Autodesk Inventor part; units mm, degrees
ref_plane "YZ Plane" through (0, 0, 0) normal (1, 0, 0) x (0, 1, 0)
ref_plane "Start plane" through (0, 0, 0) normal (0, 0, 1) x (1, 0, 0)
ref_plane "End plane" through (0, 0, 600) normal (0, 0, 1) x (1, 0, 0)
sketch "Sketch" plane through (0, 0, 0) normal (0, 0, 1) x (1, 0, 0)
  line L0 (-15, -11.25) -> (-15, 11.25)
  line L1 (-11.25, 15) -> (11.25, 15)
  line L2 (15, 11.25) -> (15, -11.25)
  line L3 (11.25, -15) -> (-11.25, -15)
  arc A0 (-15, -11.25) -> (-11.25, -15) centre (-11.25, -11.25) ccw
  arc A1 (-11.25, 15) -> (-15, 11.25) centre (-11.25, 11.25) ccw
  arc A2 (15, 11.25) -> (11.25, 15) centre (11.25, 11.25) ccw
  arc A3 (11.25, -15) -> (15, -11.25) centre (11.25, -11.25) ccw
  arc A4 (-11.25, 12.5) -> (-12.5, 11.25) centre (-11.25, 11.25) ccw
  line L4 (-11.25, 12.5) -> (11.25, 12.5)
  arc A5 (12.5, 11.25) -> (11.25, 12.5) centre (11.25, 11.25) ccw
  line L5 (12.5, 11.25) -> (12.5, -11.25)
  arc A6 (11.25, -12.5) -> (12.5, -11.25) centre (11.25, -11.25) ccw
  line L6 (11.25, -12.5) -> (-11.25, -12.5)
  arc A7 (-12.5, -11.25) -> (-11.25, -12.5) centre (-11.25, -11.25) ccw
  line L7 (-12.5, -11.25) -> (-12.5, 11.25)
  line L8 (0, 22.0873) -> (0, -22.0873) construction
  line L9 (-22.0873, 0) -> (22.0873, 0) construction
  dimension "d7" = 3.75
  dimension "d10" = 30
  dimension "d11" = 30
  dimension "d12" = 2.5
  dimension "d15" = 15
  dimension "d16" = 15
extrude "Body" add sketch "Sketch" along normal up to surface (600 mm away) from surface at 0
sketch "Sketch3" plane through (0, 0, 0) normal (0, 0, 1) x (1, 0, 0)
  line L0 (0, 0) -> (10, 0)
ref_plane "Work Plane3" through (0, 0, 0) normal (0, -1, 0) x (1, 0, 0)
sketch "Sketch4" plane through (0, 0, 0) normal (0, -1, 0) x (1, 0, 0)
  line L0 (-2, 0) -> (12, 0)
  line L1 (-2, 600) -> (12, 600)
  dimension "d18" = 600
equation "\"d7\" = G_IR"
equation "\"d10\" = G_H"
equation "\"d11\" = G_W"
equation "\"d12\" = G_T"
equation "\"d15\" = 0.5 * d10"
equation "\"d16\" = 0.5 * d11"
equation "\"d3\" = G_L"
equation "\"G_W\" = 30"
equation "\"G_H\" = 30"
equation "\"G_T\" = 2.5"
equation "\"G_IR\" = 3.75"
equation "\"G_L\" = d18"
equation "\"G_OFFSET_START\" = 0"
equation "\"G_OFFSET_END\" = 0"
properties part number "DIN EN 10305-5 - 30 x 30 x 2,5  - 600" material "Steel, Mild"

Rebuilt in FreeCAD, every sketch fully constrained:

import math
import FreeCAD as App
import Part
import Sketcher
from FreeCAD import Vector
Q = App.Units.Quantity

doc = App.newDocument("Part")
body = doc.addObject("PartDesign::Body", "Body")

# Sketch on XY plane
sketch1 = body.newObject("Sketcher::SketchObject", "Sketch")
sketch1.AttachmentSupport = (doc.getObject("XY_Plane"), [""])
sketch1.MapMode = "FlatFace"
sketch1.addGeometry([
    Part.LineSegment(Vector(-15, 11.2, 0), Vector(-15, -11.2, 0)),  # 0
    Part.ArcOfCircle(Part.Circle(Vector(-11.2, -11.2, 0), Vector(0, 0, 1), 3.8), math.radians(180), math.radians(270)),  # 1
    Part.LineSegment(Vector(-11.2, -15, 0), Vector(11.2, -15, 0)),  # 2
    Part.ArcOfCircle(Part.Circle(Vector(11.2, -11.2, 0), Vector(0, 0, 1), 3.8), math.radians(-90), math.radians(0)),  # 3
    Part.LineSegment(Vector(15, -11.2, 0), Vector(15, 11.2, 0)),  # 4
    Part.ArcOfCircle(Part.Circle(Vector(11.2, 11.2, 0), Vector(0, 0, 1), 3.8), math.radians(0), math.radians(90)),  # 5
    Part.LineSegment(Vector(11.2, 15, 0), Vector(-11.2, 15, 0)),  # 6
    Part.ArcOfCircle(Part.Circle(Vector(-11.2, 11.2, 0), Vector(0, 0, 1), 3.8), math.radians(90), math.radians(180)),  # 7
    Part.ArcOfCircle(Part.Circle(Vector(-11.2, 11.2, 0), Vector(0, 0, 1), 1.2), math.radians(90), math.radians(180)),  # 8
    Part.LineSegment(Vector(-11.2, 12.5, 0), Vector(11.2, 12.5, 0)),  # 9
    Part.ArcOfCircle(Part.Circle(Vector(11.2, 11.2, 0), Vector(0, 0, 1), 1.2), math.radians(0), math.radians(90)),  # 10
    Part.LineSegment(Vector(12.5, 11.2, 0), Vector(12.5, -11.2, 0)),  # 11
    Part.ArcOfCircle(Part.Circle(Vector(11.2, -11.2, 0), Vector(0, 0, 1), 1.2), math.radians(-90), math.radians(0)),  # 12
    Part.LineSegment(Vector(11.2, -12.5, 0), Vector(-11.2, -12.5, 0)),  # 13
    Part.ArcOfCircle(Part.Circle(Vector(-11.2, -11.2, 0), Vector(0, 0, 1), 1.2), math.radians(180), math.radians(270)),  # 14
    Part.LineSegment(Vector(-12.5, -11.2, 0), Vector(-12.5, 11.2, 0)),  # 15
], False)
sketch1.addConstraint([
    Sketcher.Constraint("Tangent", 0, 2, 1, 1),
    Sketcher.Constraint("Tangent", 1, 2, 2, 1),
    Sketcher.Constraint("Tangent", 2, 2, 3, 1),
    Sketcher.Constraint("Tangent", 3, 2, 4, 1),
    Sketcher.Constraint("Tangent", 4, 2, 5, 1),
    Sketcher.Constraint("Tangent", 5, 2, 6, 1),
    Sketcher.Constraint("Tangent", 6, 2, 7, 1),
    Sketcher.Constraint("Tangent", 7, 2, 0, 1),
    Sketcher.Constraint("Tangent", 8, 1, 9, 1),
    Sketcher.Constraint("Tangent", 9, 2, 10, 2),
    Sketcher.Constraint("Tangent", 10, 1, 11, 1),
    Sketcher.Constraint("Tangent", 11, 2, 12, 2),
    Sketcher.Constraint("Tangent", 12, 1, 13, 1),
    Sketcher.Constraint("Tangent", 13, 2, 14, 2),
    Sketcher.Constraint("Tangent", 14, 1, 15, 1),
    Sketcher.Constraint("Tangent", 15, 2, 8, 2),
    Sketcher.Constraint("Vertical", 0),
    Sketcher.Constraint("Horizontal", 2),
    Sketcher.Constraint("Vertical", 4),
    Sketcher.Constraint("Horizontal", 6),
    Sketcher.Constraint("Horizontal", 9),
    Sketcher.Constraint("Vertical", 11),
    Sketcher.Constraint("Horizontal", 13),
    Sketcher.Constraint("Vertical", 15),
    Sketcher.Constraint("Coincident", 8, 3, 7, 3),
    Sketcher.Constraint("Coincident", 10, 3, 5, 3),
    Sketcher.Constraint("Coincident", 12, 3, 3, 3),
    Sketcher.Constraint("Equal", 1, 3),
    Sketcher.Constraint("Equal", 3, 5),
    Sketcher.Constraint("Equal", 5, 7),
    Sketcher.Constraint("Equal", 12, 14),
    Sketcher.Constraint("Symmetric", 1, 3, 5, 3, -1, 1),
    Sketcher.Constraint("Equal", 13, 0),
    Sketcher.Constraint("Radius", 1, Q("3.75 mm")),
    Sketcher.Constraint("Radius", 8, Q("1.25 mm")),
    Sketcher.Constraint("DistanceX", 0, 2, -1, 1, Q("15 mm")),
])
pad1 = body.newObject("PartDesign::Pad", "Pad")
pad1.Profile = sketch1
pad1.Length = 600

doc.recompute()
